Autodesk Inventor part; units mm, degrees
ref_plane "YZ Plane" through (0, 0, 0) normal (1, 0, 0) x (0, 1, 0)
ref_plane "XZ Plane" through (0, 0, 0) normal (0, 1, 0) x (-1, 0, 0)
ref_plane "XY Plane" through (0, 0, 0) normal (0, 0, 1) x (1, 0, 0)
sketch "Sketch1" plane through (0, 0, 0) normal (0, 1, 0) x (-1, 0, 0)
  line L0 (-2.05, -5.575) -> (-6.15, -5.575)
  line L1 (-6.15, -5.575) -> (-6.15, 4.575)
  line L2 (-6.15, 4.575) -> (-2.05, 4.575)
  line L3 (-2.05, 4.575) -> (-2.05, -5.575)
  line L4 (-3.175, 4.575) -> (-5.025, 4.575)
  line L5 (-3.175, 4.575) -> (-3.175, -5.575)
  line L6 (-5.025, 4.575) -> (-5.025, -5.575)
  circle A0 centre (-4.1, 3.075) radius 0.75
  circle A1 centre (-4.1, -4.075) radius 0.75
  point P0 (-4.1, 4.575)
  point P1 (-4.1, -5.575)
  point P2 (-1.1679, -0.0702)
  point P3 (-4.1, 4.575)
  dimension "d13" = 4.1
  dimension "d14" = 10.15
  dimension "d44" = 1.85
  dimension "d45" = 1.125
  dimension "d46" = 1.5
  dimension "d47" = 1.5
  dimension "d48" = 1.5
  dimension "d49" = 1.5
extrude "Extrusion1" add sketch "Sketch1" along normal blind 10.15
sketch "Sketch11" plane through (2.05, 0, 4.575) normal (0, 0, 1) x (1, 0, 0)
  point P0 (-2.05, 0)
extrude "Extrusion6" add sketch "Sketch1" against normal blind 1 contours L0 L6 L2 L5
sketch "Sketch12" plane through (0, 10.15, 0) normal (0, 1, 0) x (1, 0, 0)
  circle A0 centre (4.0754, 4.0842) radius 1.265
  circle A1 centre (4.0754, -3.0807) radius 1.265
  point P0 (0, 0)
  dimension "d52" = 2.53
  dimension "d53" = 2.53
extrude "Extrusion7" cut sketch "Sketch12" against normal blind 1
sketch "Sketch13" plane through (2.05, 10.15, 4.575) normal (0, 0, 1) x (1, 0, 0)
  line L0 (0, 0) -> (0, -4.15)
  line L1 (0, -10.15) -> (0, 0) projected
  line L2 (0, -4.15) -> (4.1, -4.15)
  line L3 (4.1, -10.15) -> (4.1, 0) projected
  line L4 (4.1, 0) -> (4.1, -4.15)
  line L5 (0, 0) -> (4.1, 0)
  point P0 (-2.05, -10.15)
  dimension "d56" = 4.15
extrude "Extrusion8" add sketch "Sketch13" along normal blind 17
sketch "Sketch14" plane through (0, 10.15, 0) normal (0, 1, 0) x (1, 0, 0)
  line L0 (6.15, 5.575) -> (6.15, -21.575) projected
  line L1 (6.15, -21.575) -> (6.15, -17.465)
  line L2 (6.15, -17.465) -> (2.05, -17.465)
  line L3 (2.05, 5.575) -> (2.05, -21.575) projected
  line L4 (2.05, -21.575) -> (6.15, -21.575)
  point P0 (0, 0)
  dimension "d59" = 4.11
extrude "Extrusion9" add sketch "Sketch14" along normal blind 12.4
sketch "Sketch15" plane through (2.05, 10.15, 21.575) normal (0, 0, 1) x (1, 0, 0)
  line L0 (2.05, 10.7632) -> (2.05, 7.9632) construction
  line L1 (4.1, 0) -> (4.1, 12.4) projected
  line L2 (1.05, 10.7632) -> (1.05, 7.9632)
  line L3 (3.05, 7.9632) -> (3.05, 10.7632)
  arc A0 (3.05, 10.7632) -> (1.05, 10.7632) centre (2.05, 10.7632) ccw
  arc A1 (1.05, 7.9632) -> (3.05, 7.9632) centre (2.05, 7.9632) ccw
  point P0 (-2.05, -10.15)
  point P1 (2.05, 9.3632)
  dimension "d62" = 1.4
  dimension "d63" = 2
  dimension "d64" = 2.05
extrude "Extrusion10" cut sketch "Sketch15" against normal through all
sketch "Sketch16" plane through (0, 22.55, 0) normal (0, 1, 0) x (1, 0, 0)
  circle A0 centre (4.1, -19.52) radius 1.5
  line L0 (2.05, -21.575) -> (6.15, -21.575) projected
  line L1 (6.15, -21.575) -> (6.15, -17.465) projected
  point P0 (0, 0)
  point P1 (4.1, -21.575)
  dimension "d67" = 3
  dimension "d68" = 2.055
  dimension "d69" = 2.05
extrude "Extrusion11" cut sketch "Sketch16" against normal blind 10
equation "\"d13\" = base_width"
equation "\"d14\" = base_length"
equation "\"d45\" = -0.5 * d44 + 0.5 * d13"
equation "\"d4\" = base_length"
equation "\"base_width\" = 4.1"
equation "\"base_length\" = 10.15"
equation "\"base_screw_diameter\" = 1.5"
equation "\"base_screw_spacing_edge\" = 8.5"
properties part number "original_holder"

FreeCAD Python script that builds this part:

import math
import FreeCAD as App
import Part
import Sketcher

V = App.Vector


def add_polygon(sketch, points):
    """Adds a closed chain of lines whose ends are joined by coincident constraints."""
    first, n = sketch.GeometryCount, len(points)
    for a, b in zip(points, points[1:] + points[:1]):
        sketch.addGeometry(Part.LineSegment(App.Vector(*a, 0), App.Vector(*b, 0)), False)
    for i in range(n):
        sketch.addConstraint(Sketcher.Constraint("Coincident", first + i, 2, first + (i + 1) % n, 1))

doc = App.newDocument("Part")
params = doc.addObject("Spreadsheet::Sheet", "Params")
for row, (alias, value) in enumerate([
    ("sketch1_diameter", "1.5 mm"),
    ("sketch1_width", "4.1 mm"),
    ("sketch1_height", "10.15 mm"),
    ("pad1_length", "10.15 mm"),
    ("sketch2_diameter", "1.5 mm"),
    ("sketch2_width", "1.85 mm"),
    ("sketch2_height", "10.15 mm"),
    ("pad2_length", "1 mm"),
    ("sketch3_diameter", "2.53 mm"),
    ("pocket1_length", "1 mm"),
    ("sketch4_height", "4.15 mm"),
    ("sketch4_width", "4.1 mm"),
    ("pad3_length", "17 mm"),
    ("sketch5_height", "4.11 mm"),
    ("sketch5_width", "4.1 mm"),
    ("pad4_length", "12.4 mm"),
    ("sketch6_radius", "1 mm"),
    ("sketch6_height", "2.8 mm"),
    ("sketch7_diameter", "3 mm"),
    ("pocket3_length", "10 mm"),
], start=1):
    params.set(f"A{row}", alias)
    params.set(f"B{row}", "=" + value)
    params.setAlias(f"B{row}", alias)

body = doc.addObject("PartDesign::Body", "Body")

sketch1 = body.newObject("Sketcher::SketchObject", "Sketch")
sketch1.AttachmentSupport = (doc.getObject("XZ_Plane"), [""])
sketch1.MapMode = "FlatFace"
add_polygon(sketch1, [(2, -5.6), (2, 4.6), (6.2, 4.6), (6.2, -5.6)])
sketch1.addGeometry(Part.Circle(V(4.1, 3.1, 0), V(0, 0, 1), 0.8), False)
sketch1.addGeometry(Part.Circle(V(4.1, -4.1, 0), V(0, 0, 1), 0.8), False)
sketch1.addConstraint([
    Sketcher.Constraint("Vertical", 0),
    Sketcher.Constraint("Horizontal", 1),
    Sketcher.Constraint("Vertical", 2),
    Sketcher.Constraint("Horizontal", 3),
    Sketcher.Constraint("Equal", 4, 5),
    Sketcher.Constraint("Vertical", 4, 3, 5, 3),
    Sketcher.Constraint("Diameter", 4, 1.5),
    Sketcher.Constraint("DistanceX", 1, 1, 1, 2, 4.1),
    Sketcher.Constraint("DistanceY", 0, 1, 0, 2, 10.15),
    Sketcher.Constraint("DistanceX", -1, 1, 4, 3, 4.1),
    Sketcher.Constraint("DistanceY", 4, 3, 0, 2, 1.5),
    Sketcher.Constraint("DistanceY", 2, 2, 5, 3, 1.5),
    Sketcher.Constraint("DistanceX", -1, 1, 0, 2, 2.05),
    Sketcher.Constraint("DistanceY", -1, 1, 4, 3, 3.075),
])
sketch1.setExpression("Constraints[10]", "Params.sketch1_diameter")
sketch1.setExpression("Constraints[11]", "Params.sketch1_width")
sketch1.setExpression("Constraints[12]", "Params.sketch1_height")
pad1 = body.newObject("PartDesign::Pad", "Pad")
pad1.Profile = sketch1
pad1.setExpression("Length", "Params.pad1_length")
pad1.Reversed = True

sketch2 = body.newObject("Sketcher::SketchObject", "Sketch001")
sketch2.AttachmentSupport = (doc.getObject("XZ_Plane"), [""])
sketch2.MapMode = "FlatFace"
add_polygon(sketch2, [(5, -5.6), (3.2, -5.6), (3.2, 4.6), (5, 4.6)])
sketch2.addGeometry(Part.Circle(V(4.1, -4.1, 0), V(0, 0, 1), 0.8), False)
sketch2.addGeometry(Part.Circle(V(4.1, 3.1, 0), V(0, 0, 1), 0.8), False)
sketch2.addConstraint([
    Sketcher.Constraint("Horizontal", 0),
    Sketcher.Constraint("Vertical", 1),
    Sketcher.Constraint("Horizontal", 2),
    Sketcher.Constraint("Vertical", 3),
    Sketcher.Constraint("Equal", 4, 5),
    Sketcher.Constraint("Vertical", 4, 3, 5, 3),
    Sketcher.Constraint("Diameter", 4, 1.5),
    Sketcher.Constraint("DistanceX", 0, 2, 0, 1, 1.85),
    Sketcher.Constraint("DistanceY", 1, 1, 1, 2, 10.15),
    Sketcher.Constraint("DistanceX", -1, 1, 4, 3, 4.1),
    Sketcher.Constraint("DistanceY", 0, 2, 4, 3, 1.5),
    Sketcher.Constraint("DistanceY", 5, 3, 1, 2, 1.5),
    Sketcher.Constraint("DistanceY", 4, 3, -1, 1, 4.075),
    Sketcher.Constraint("DistanceX", -1, 1, 0, 2, 3.175),
])
sketch2.setExpression("Constraints[10]", "Params.sketch2_diameter")
sketch2.setExpression("Constraints[11]", "Params.sketch2_width")
sketch2.setExpression("Constraints[12]", "Params.sketch2_height")
pad2 = body.newObject("PartDesign::Pad", "Pad001")
pad2.Profile = sketch2
pad2.setExpression("Length", "Params.pad2_length")

sketch3 = body.newObject("Sketcher::SketchObject", "Sketch002")
sketch3.AttachmentSupport = (doc.getObject("XZ_Plane"), [""])
sketch3.MapMode = "FlatFace"
sketch3.AttachmentOffset = App.Placement(V(0, 0, -10.15), App.Rotation())
sketch3.addGeometry([
    Part.Circle(V(4.1, -4.1, 0), V(0, 0, 1), 1.3),
    Part.Circle(V(4.1, 3.1, 0), V(0, 0, 1), 1.3),
], False)
sketch3.addConstraint([
    Sketcher.Constraint("Equal", 0, 1),
    Sketcher.Constraint("Vertical", 0, 3, 1, 3),
    Sketcher.Constraint("Diameter", 0, 2.53),
    Sketcher.Constraint("DistanceY", 0, 3, 1, 3, 7.165),
    Sketcher.Constraint("DistanceX", -1, 1, 0, 3, 4.0754),
    Sketcher.Constraint("DistanceY", 0, 3, -1, 1, 4.0842),
])
sketch3.setExpression("Constraints[2]", "Params.sketch3_diameter")
pocket1 = body.newObject("PartDesign::Pocket", "Pocket")
pocket1.Profile = sketch3
pocket1.setExpression("Length", "Params.pocket1_length")
pocket1.Reversed = True

sketch4 = body.newObject("Sketcher::SketchObject", "Sketch003")
sketch4.AttachmentSupport = (doc.getObject("XY_Plane"), [""])
sketch4.MapMode = "FlatFace"
sketch4.AttachmentOffset = App.Placement(V(0, 0, 4.575), App.Rotation())
add_polygon(sketch4, [(6.2, 10.2), (2, 10.2), (2, 6), (6.2, 6)])
sketch4.addConstraint([
    Sketcher.Constraint("Horizontal", 0),
    Sketcher.Constraint("Vertical", 1),
    Sketcher.Constraint("Horizontal", 2),
    Sketcher.Constraint("Vertical", 3),
    Sketcher.Constraint("DistanceY", 1, 2, 1, 1, 4.15),
    Sketcher.Constraint("DistanceX", 0, 2, 0, 1, 4.1),
    Sketcher.Constraint("DistanceY", -1, 1, 1, 2, 6.0),
    Sketcher.Constraint("DistanceX", -1, 1, 0, 2, 2.05),
])
sketch4.setExpression("Constraints[8]", "Params.sketch4_height")
sketch4.setExpression("Constraints[9]", "Params.sketch4_width")
pad3 = body.newObject("PartDesign::Pad", "Pad002")
pad3.Profile = sketch4
pad3.setExpression("Length", "Params.pad3_length")

sketch5 = body.newObject("Sketcher::SketchObject", "Sketch004")
sketch5.AttachmentSupport = (doc.getObject("XZ_Plane"), [""])
sketch5.MapMode = "FlatFace"
sketch5.AttachmentOffset = App.Placement(V(0, 0, -10.15), App.Rotation())
add_polygon(sketch5, [(6.2, 21.6), (6.2, 17.5), (2, 17.5), (2, 21.6)])
sketch5.addConstraint([
    Sketcher.Constraint("Vertical", 0),
    Sketcher.Constraint("Horizontal", 1),
    Sketcher.Constraint("Vertical", 2),
    Sketcher.Constraint("Horizontal", 3),
    Sketcher.Constraint("DistanceY", 0, 2, 0, 1, 4.11),
    Sketcher.Constraint("DistanceX", 1, 2, 1, 1, 4.1),
    Sketcher.Constraint("DistanceX", -1, 1, 0, 2, 6.15),
    Sketcher.Constraint("DistanceY", -1, 1, 0, 2, 17.465),
])
sketch5.setExpression("Constraints[8]", "Params.sketch5_height")
sketch5.setExpression("Constraints[9]", "Params.sketch5_width")
pad4 = body.newObject("PartDesign::Pad", "Pad003")
pad4.Profile = sketch5
pad4.setExpression("Length", "Params.pad4_length")
pad4.Reversed = True

sketch6 = body.newObject("Sketcher::SketchObject", "Sketch005")
sketch6.AttachmentSupport = (doc.getObject("XY_Plane"), [""])
sketch6.MapMode = "FlatFace"
sketch6.AttachmentOffset = App.Placement(V(0, 0, 21.575), App.Rotation())
sketch6.addGeometry([
    Part.ArcOfCircle(Part.Circle(V(4.1, 20.9, 0), V(0, 0, 1), 1), math.radians(0), math.radians(180)),
    Part.LineSegment(V(3.1, 20.9, 0), V(3.1, 18.1, 0)),
    Part.ArcOfCircle(Part.Circle(V(4.1, 18.1, 0), V(0, 0, 1), 1), math.radians(180), math.radians(360)),
    Part.LineSegment(V(5.1, 18.1, 0), V(5.1, 20.9, 0)),
], False)
sketch6.addConstraint([
    Sketcher.Constraint("Tangent", 0, 2, 1, 1),
    Sketcher.Constraint("Tangent", 1, 2, 2, 1),
    Sketcher.Constraint("Tangent", 2, 2, 3, 1),
    Sketcher.Constraint("Tangent", 3, 2, 0, 1),
    Sketcher.Constraint("Vertical", 1),
    Sketcher.Constraint("Vertical", 3),
    Sketcher.Constraint("Radius", 0, 1.0),
    Sketcher.Constraint("DistanceY", 1, 2, 1, 1, 2.8),
    Sketcher.Constraint("DistanceX", -1, 1, 0, 3, 4.1),
    Sketcher.Constraint("DistanceY", -1, 1, 0, 3, 20.9132),
])
sketch6.setExpression("Constraints[6]", "Params.sketch6_radius")
sketch6.setExpression("Constraints[7]", "Params.sketch6_height")
pocket2 = body.newObject("PartDesign::Pocket", "Pocket001")
pocket2.Profile = sketch6
pocket2.Type = "ThroughAll"

sketch7 = body.newObject("Sketcher::SketchObject", "Sketch006")
sketch7.AttachmentSupport = (doc.getObject("XZ_Plane"), [""])
sketch7.MapMode = "FlatFace"
sketch7.AttachmentOffset = App.Placement(V(0, 0, -22.55), App.Rotation())
sketch7.addGeometry(Part.Circle(V(4.1, 19.5, 0), V(0, 0, 1), 1.5), False)
sketch7.addConstraint([
    Sketcher.Constraint("Diameter", 0, 3.0),
    Sketcher.Constraint("DistanceX", -1, 1, 0, 3, 4.1),
    Sketcher.Constraint("DistanceY", -1, 1, 0, 3, 19.52),
])
sketch7.setExpression("Constraints[0]", "Params.sketch7_diameter")
pocket3 = body.newObject("PartDesign::Pocket", "Pocket002")
pocket3.Profile = sketch7
pocket3.setExpression("Length", "Params.pocket3_length")
pocket3.Reversed = True

doc.recompute()
